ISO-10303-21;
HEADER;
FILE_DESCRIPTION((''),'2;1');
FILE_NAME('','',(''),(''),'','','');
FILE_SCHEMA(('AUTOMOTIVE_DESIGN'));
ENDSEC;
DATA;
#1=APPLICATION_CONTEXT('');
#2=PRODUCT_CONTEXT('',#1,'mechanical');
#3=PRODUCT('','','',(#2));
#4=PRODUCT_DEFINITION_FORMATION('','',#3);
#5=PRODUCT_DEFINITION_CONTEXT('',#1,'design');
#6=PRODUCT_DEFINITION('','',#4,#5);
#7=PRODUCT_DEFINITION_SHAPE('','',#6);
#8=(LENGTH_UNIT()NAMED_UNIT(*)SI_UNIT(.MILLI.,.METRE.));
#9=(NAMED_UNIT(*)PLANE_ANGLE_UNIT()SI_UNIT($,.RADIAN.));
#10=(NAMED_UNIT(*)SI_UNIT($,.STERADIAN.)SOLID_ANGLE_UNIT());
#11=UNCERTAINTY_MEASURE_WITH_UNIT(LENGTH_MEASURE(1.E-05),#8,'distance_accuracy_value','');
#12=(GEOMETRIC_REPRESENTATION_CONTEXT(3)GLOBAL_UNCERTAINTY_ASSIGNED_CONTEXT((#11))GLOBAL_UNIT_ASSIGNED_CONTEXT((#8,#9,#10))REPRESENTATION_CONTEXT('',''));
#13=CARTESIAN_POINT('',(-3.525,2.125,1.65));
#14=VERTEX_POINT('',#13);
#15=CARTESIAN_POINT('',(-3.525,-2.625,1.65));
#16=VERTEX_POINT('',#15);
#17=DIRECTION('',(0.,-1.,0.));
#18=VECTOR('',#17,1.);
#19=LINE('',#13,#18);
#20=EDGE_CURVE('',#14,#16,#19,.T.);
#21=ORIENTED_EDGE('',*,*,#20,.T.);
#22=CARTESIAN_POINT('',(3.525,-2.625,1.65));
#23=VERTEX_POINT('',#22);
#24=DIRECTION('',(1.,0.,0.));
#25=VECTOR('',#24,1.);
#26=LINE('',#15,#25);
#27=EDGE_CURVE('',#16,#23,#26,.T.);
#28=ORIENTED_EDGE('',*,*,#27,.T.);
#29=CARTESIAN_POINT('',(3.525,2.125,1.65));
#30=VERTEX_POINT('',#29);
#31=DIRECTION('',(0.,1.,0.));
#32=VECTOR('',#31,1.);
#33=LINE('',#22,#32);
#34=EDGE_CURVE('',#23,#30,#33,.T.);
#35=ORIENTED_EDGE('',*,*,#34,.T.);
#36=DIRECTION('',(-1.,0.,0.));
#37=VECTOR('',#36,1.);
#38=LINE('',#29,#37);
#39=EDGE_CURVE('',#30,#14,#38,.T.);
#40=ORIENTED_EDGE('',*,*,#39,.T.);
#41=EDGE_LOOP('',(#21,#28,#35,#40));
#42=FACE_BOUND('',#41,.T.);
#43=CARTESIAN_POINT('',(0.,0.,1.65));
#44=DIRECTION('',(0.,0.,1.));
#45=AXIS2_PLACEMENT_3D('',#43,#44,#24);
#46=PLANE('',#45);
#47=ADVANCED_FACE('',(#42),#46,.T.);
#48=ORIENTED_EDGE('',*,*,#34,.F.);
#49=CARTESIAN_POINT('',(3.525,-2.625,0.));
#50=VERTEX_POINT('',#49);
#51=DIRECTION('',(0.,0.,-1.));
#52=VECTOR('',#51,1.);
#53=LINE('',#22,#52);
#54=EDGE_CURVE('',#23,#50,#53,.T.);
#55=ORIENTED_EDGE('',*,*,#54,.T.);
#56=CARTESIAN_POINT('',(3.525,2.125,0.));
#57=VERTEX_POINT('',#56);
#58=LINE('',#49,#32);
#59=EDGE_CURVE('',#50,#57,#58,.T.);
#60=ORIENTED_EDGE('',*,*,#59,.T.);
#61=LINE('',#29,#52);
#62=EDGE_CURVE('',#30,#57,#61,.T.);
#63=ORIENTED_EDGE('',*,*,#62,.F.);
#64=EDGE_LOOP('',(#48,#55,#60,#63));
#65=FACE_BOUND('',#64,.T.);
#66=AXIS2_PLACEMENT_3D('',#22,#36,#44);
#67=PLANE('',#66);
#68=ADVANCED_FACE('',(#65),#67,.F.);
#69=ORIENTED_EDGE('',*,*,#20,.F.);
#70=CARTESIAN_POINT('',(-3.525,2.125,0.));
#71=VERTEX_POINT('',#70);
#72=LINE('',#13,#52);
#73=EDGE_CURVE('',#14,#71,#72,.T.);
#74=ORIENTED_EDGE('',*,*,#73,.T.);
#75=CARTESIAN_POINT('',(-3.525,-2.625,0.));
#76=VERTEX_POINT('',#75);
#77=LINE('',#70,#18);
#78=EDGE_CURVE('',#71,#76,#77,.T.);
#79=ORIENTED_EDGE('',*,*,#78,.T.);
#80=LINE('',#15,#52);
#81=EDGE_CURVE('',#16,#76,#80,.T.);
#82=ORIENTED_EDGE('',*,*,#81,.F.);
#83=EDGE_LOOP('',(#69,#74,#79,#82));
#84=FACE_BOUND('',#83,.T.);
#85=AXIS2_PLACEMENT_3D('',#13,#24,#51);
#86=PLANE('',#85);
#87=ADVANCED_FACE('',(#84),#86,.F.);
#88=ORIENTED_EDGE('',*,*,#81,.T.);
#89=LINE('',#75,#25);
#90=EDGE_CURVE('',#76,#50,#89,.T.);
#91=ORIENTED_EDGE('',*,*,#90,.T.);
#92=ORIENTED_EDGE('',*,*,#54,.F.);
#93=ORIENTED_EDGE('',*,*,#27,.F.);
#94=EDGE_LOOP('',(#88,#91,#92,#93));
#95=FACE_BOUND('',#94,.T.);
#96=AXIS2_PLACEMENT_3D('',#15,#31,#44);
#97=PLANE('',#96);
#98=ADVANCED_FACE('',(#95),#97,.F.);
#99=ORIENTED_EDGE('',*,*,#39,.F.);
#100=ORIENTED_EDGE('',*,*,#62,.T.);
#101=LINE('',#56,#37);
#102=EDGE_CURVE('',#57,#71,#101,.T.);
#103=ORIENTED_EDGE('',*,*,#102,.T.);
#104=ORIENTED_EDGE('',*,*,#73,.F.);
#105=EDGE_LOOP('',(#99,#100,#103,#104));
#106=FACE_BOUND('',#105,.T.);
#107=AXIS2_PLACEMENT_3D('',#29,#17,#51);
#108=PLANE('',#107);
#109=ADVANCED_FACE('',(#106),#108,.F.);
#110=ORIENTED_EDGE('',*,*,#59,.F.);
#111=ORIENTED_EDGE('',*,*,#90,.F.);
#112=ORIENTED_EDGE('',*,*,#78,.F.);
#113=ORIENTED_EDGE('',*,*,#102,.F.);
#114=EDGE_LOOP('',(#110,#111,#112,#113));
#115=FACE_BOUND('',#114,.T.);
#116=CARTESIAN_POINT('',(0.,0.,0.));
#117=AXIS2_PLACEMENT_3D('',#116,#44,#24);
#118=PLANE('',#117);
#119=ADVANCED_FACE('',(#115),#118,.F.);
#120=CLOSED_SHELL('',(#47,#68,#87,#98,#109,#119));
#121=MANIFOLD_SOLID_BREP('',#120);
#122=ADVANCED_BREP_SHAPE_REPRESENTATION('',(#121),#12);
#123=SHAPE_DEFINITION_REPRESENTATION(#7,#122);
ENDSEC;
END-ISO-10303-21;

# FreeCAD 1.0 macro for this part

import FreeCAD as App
import Part
import Sketcher

V = App.Vector
Q = App.Units.Quantity

doc = App.newDocument("Part")
body = doc.addObject("PartDesign::Body", "Body")

# Sketch on XY plane
sketch1 = body.newObject("Sketcher::SketchObject", "Sketch")
sketch1.AttachmentSupport = (doc.getObject("XY_Plane"), [""])
sketch1.MapMode = "FlatFace"
sketch1.addGeometry([
    Part.LineSegment(V(-3.5, 2.1, 0), V(-3.5, -2.6, 0)),
    Part.LineSegment(V(-3.5, -2.6, 0), V(3.5, -2.6, 0)),
    Part.LineSegment(V(3.5, -2.6, 0), V(3.5, 2.1, 0)),
    Part.LineSegment(V(3.5, 2.1, 0), V(-3.5, 2.1, 0)),
], False)
sketch1.addConstraint([
    Sketcher.Constraint("Coincident", 0, 2, 1, 1),
    Sketcher.Constraint("Coincident", 1, 2, 2, 1),
    Sketcher.Constraint("Coincident", 2, 2, 3, 1),
    Sketcher.Constraint("Coincident", 3, 2, 0, 1),
    Sketcher.Constraint("Vertical", 0),
    Sketcher.Constraint("Horizontal", 1),
    Sketcher.Constraint("Vertical", 2),
    Sketcher.Constraint("Horizontal", 3),
    Sketcher.Constraint("DistanceX", 1, 1, 1, 2, Q("7.05 mm")),
    Sketcher.Constraint("DistanceY", 0, 2, 0, 1, Q("4.75 mm")),
    Sketcher.Constraint("DistanceX", 0, 2, -1, 1, Q("3.525 mm")),
    Sketcher.Constraint("DistanceY", 0, 2, -1, 1, Q("2.625 mm")),
])
pad1 = body.newObject("PartDesign::Pad", "Pad")
pad1.Profile = sketch1
pad1.Length = 1.65

doc.recompute()
